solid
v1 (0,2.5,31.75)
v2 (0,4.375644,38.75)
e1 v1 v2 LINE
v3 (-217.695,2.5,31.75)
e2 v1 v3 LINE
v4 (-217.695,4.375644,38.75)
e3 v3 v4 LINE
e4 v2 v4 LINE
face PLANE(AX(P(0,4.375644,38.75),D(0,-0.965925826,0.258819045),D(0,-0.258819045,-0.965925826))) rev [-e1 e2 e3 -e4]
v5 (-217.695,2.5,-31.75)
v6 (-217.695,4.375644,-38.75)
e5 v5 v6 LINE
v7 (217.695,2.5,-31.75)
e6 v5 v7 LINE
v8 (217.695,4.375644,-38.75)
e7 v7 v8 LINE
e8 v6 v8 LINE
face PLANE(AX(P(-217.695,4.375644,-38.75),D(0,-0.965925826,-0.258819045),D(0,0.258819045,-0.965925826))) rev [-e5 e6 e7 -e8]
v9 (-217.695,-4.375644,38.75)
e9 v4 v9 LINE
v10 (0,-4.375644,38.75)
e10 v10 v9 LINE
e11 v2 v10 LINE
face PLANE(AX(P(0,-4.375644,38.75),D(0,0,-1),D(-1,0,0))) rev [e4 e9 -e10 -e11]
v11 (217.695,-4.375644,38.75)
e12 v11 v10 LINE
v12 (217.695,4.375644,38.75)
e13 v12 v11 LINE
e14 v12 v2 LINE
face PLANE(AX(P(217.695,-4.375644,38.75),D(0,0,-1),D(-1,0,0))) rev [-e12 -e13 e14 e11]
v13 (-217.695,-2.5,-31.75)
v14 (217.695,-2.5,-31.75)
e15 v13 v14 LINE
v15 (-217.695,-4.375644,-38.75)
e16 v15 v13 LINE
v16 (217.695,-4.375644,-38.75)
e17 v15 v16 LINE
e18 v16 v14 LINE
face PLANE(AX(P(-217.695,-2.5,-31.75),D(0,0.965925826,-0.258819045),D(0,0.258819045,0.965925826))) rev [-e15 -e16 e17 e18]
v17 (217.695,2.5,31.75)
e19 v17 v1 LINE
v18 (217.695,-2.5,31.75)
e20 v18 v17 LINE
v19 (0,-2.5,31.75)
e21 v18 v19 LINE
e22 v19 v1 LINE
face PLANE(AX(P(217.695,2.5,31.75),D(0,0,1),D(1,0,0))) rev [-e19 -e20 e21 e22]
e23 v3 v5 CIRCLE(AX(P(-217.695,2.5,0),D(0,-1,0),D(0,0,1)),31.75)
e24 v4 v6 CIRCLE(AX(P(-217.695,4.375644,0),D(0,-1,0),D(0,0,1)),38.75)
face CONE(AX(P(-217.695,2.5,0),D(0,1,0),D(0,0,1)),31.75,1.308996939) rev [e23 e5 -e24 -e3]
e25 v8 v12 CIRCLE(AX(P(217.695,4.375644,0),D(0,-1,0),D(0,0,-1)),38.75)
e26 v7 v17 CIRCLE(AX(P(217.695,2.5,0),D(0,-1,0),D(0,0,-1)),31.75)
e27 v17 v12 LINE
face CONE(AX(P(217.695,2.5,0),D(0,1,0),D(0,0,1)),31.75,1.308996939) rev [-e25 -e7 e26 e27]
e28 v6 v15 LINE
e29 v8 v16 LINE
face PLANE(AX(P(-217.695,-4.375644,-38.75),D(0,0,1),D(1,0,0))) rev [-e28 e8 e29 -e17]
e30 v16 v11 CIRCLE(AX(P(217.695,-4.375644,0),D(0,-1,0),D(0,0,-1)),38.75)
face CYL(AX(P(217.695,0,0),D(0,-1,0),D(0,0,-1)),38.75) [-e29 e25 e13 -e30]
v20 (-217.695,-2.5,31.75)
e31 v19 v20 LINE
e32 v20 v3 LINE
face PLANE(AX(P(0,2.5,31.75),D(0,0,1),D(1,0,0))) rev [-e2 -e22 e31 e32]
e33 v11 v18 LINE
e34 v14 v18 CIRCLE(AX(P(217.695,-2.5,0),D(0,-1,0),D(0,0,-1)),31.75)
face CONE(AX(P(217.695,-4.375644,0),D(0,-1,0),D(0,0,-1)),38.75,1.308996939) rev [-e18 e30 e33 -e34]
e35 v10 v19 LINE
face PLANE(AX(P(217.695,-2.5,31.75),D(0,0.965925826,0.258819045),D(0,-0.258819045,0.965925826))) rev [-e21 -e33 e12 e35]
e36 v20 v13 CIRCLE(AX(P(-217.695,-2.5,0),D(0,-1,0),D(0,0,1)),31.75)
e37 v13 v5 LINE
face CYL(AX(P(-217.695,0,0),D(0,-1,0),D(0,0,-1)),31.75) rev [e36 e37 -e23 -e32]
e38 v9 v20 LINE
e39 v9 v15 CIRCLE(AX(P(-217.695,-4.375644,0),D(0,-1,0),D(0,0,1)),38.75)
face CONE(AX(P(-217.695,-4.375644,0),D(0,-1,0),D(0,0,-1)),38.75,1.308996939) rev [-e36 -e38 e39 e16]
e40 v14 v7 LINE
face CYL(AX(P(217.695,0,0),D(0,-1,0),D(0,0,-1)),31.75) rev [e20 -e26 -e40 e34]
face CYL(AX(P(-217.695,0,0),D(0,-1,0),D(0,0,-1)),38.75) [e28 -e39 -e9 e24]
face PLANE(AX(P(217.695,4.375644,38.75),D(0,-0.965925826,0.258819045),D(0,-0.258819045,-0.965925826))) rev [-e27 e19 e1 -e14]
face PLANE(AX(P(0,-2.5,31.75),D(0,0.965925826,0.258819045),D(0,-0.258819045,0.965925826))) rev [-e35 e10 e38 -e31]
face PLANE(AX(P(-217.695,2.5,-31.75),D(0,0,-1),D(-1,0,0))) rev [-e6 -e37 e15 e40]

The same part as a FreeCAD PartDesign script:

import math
import FreeCAD as App
import Part
import Sketcher
from FreeCAD import Vector
Q = App.Units.Quantity

doc = App.newDocument("Part")
params = doc.addObject("Spreadsheet::Sheet", "Params")
for row, (alias, value) in enumerate([
    ("sketch1_width", "5 mm"),
    ("sketch2_radius", "31.75 mm"),
    ("sketch2_width", "435.39 mm"),
], start=1):
    params.set(f"A{row}", alias)
    params.set(f"B{row}", "=" + value)
    params.setAlias(f"B{row}", alias)

body = doc.addObject("PartDesign::Body", "Body")

# Sketch on YZ plane
sketch1 = doc.addObject("Sketcher::SketchObject", "Sketch")
body.addObject(sketch1)
sketch1.AttachmentSupport = (doc.YZ_Plane, [""])
sketch1.MapMode = "FlatFace"
sketch1.addGeometry(Part.LineSegment(Vector(2, 32, 0), Vector(4, 39, 0)), False)
sketch1.addGeometry(Part.LineSegment(Vector(4, 39, 0), Vector(-4, 39, 0)), False)
sketch1.addGeometry(Part.LineSegment(Vector(-4, 39, 0), Vector(-2, 32, 0)), False)
sketch1.addGeometry(Part.LineSegment(Vector(-2, 32, 0), Vector(2, 32, 0)), False)
sketch1.addConstraint(Sketcher.Constraint("Coincident", 0, 2, 1, 1))
sketch1.addConstraint(Sketcher.Constraint("Coincident", 1, 2, 2, 1))
sketch1.addConstraint(Sketcher.Constraint("Coincident", 2, 2, 3, 1))
sketch1.addConstraint(Sketcher.Constraint("Coincident", 3, 2, 0, 1))
sketch1.addConstraint(Sketcher.Constraint("Horizontal", 1))
sketch1.addConstraint(Sketcher.Constraint("Horizontal", 3))
sketch1.addConstraint(Sketcher.Constraint("Equal", 0, 2))
sketch1.addConstraint(Sketcher.Constraint("DistanceX", 3, 1, 3, 2, 5.0))
sketch1.addConstraint(Sketcher.Constraint("Angle", 0, Q("75 deg")))
sketch1.addConstraint(Sketcher.Constraint("DistanceY", 2, 2, 1, 2, 7.0))
sketch1.addConstraint(Sketcher.Constraint("DistanceX", 2, 2, -1, 1, 2.5))
sketch1.addConstraint(Sketcher.Constraint("DistanceY", -1, 1, 0, 2, 38.75))
sketch1.setExpression("Constraints[7]", "Params.sketch1_width")

# Sketch on XZ plane
sketch2 = doc.addObject("Sketcher::SketchObject", "Sketch001")
body.addObject(sketch2)
sketch2.AttachmentSupport = (doc.XZ_Plane, [""])
sketch2.MapMode = "FlatFace"
sketch2.addGeometry(Part.LineSegment(Vector(-218, -32, 0), Vector(218, -32, 0)), False)
sketch2.addGeometry(Part.ArcOfCircle(Part.Circle(Vector(218, 0, 0), Vector(0, 0, 1), 32), math.radians(-90), math.radians(90)), False)
sketch2.addGeometry(Part.LineSegment(Vector(218, 32, 0), Vector(-218, 32, 0)), False)
sketch2.addGeometry(Part.ArcOfCircle(Part.Circle(Vector(-218, 0, 0), Vector(0, 0, 1), 32), math.radians(90), math.radians(270)), False)
sketch2.addConstraint(Sketcher.Constraint("Tangent", 0, 2, 1, 1))
sketch2.addConstraint(Sketcher.Constraint("Tangent", 1, 2, 2, 1))
sketch2.addConstraint(Sketcher.Constraint("Tangent", 2, 2, 3, 1))
sketch2.addConstraint(Sketcher.Constraint("Tangent", 3, 2, 0, 1))
sketch2.addConstraint(Sketcher.Constraint("Horizontal", 0))
sketch2.addConstraint(Sketcher.Constraint("Horizontal", 2))
sketch2.addConstraint(Sketcher.Constraint("Symmetric", 1, 3, 3, 3, -1, 1))
sketch2.addConstraint(Sketcher.Constraint("Radius", 1, 31.75))
sketch2.addConstraint(Sketcher.Constraint("DistanceX", 0, 1, 0, 2, 435.39))
sketch2.setExpression("Constraints[7]", "Params.sketch2_radius")
sketch2.setExpression("Constraints[8]", "Params.sketch2_width")
doc.recompute()

additivepipe = doc.addObject("PartDesign::AdditivePipe", "AdditivePipe")
body.addObject(additivepipe)
additivepipe.Profile = sketch1
additivepipe.Spine = (sketch2, ["Edge1", "Edge2", "Edge3", "Edge4"])

doc.recompute()
